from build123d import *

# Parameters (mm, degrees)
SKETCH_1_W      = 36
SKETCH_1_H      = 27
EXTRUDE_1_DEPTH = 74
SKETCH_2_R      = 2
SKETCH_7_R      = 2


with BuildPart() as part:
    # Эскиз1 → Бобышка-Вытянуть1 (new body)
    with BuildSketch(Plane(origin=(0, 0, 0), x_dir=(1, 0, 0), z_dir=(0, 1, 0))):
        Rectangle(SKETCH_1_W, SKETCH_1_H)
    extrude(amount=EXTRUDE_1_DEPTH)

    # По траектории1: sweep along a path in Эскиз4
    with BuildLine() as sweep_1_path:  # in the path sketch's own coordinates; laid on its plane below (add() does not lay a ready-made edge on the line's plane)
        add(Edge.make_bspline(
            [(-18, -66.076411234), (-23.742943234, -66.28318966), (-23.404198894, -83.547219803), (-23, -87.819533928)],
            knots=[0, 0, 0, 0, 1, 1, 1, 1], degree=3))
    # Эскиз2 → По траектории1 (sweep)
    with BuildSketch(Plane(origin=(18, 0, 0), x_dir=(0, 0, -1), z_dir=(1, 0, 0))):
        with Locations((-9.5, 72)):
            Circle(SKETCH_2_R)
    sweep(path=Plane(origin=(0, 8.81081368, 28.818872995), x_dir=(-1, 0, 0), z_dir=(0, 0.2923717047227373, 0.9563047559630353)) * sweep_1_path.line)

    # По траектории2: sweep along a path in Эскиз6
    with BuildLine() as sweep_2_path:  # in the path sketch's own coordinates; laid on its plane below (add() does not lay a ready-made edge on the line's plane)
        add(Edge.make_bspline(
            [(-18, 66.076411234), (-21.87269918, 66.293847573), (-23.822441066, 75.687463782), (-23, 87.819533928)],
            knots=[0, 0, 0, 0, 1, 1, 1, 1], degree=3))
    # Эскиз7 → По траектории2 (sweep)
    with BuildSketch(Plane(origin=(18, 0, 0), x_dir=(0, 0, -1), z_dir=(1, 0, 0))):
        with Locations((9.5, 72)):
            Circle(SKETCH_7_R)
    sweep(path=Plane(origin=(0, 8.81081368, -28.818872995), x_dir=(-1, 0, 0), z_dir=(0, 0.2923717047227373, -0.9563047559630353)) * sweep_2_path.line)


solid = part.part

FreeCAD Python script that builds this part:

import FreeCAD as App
import Part
import Sketcher

V = App.Vector
Q = App.Units.Quantity

doc = App.newDocument("Part")
body = doc.addObject("PartDesign::Body", "Body")

sketch1 = body.newObject("Sketcher::SketchObject", "Sketch")
sketch1.AttachmentSupport = (doc.getObject("XZ_Plane"), [""])
sketch1.MapMode = "FlatFace"
sketch1.addGeometry(Part.LineSegment(V(-18, -14, 0), V(-18, 14, 0)), False)
sketch1.addGeometry(Part.LineSegment(V(-18, 14, 0), V(18, 14, 0)), False)
sketch1.addGeometry(Part.LineSegment(V(18, 14, 0), V(18, -14, 0)), False)
sketch1.addGeometry(Part.LineSegment(V(18, -14, 0), V(-18, -14, 0)), False)
sketch1.addConstraint(Sketcher.Constraint("Coincident", 0, 2, 1, 1))
sketch1.addConstraint(Sketcher.Constraint("Coincident", 1, 2, 2, 1))
sketch1.addConstraint(Sketcher.Constraint("Coincident", 2, 2, 3, 1))
sketch1.addConstraint(Sketcher.Constraint("Coincident", 3, 2, 0, 1))
sketch1.addConstraint(Sketcher.Constraint("Vertical", 0))
sketch1.addConstraint(Sketcher.Constraint("Horizontal", 1))
sketch1.addConstraint(Sketcher.Constraint("Vertical", 2))
sketch1.addConstraint(Sketcher.Constraint("Horizontal", 3))
sketch1.addConstraint(Sketcher.Constraint("Symmetric", 0, 2, 2, 2, -1, 1))
sketch1.addConstraint(Sketcher.Constraint("DistanceX", 1, 1, 1, 2, Q("36 mm")))
sketch1.addConstraint(Sketcher.Constraint("DistanceY", 0, 1, 0, 2, Q("27 mm")))
pad1 = body.newObject("PartDesign::Pad", "Pad")
pad1.Profile = sketch1
pad1.Length = 74
pad1.Reversed = True

sketch2 = body.newObject("Sketcher::SketchObject", "Sketch001")
sketch2.AttachmentSupport = (doc.getObject("YZ_Plane"), [""])
sketch2.MapMode = "FlatFace"
sketch2.AttachmentOffset = App.Placement(V(0, 0, 18), App.Rotation())
sketch2.addGeometry(Part.Circle(V(72, 9.5, 0), V(0, 0, 1), 2), False)
sketch2.addConstraint(Sketcher.Constraint("Diameter", 0, Q("4 mm")))
sketch2.addConstraint(Sketcher.Constraint("DistanceX", -1, 1, 0, 3, Q("72 mm")))
sketch2.addConstraint(Sketcher.Constraint("DistanceY", -1, 1, 0, 3, Q("9.5 mm")))

sketch3 = body.newObject("Sketcher::SketchObject", "Sketch002")
sketch3.Placement = App.Placement(V(0, 8.810814, 28.818873), App.Rotation(V(0, 0.956304756, -0.292371705), V(1, 0, 0), V(0, -0.292371705, -0.956304756), "ZXY"))
sketch3.addGeometry(Part.BSplineCurve([V(66.076411, 18, 0), V(66.28319, 23.742943, 0), V(83.54722, 23.404199, 0), V(87.819534, 23, 0)], [4, 4], [0, 1], False, 3, [1, 1, 1, 1], False), False)
sketch3.addConstraint(Sketcher.Constraint("Block", 0))
doc.recompute()

additivepipe = body.newObject("PartDesign::AdditivePipe", "AdditivePipe")
additivepipe.Profile = sketch2
additivepipe.Spine = (sketch3, ["Edge1"])

sketch4 = body.newObject("Sketcher::SketchObject", "Sketch003")
sketch4.AttachmentSupport = (doc.getObject("YZ_Plane"), [""])
sketch4.MapMode = "FlatFace"
sketch4.AttachmentOffset = App.Placement(V(0, 0, 18), App.Rotation())
sketch4.addGeometry(Part.Circle(V(72, -9.5, 0), V(0, 0, 1), 2), False)
sketch4.addConstraint(Sketcher.Constraint("Diameter", 0, Q("4 mm")))
sketch4.addConstraint(Sketcher.Constraint("DistanceX", -1, 1, 0, 3, Q("72 mm")))
sketch4.addConstraint(Sketcher.Constraint("DistanceY", 0, 3, -1, 1, Q("9.5 mm")))

sketch5 = body.newObject("Sketcher::SketchObject", "Sketch004")
sketch5.Placement = App.Placement(V(0, 8.810814, -28.818873), App.Rotation(V(0, 0.956304756, 0.292371705), V(1, 0, 0), V(0, 0.292371705, -0.956304756), "ZXY"))
sketch5.addGeometry(Part.BSplineCurve([V(66.076411, 18, 0), V(66.293848, 21.872699, 0), V(75.687464, 23.822441, 0), V(87.819534, 23, 0)], [4, 4], [0, 1], False, 3, [1, 1, 1, 1], False), False)
sketch5.addConstraint(Sketcher.Constraint("Block", 0))
doc.recompute()

additivepipe2 = body.newObject("PartDesign::AdditivePipe", "AdditivePipe001")
additivepipe2.Profile = sketch4
additivepipe2.Spine = (sketch5, ["Edge1"])

doc.recompute()
